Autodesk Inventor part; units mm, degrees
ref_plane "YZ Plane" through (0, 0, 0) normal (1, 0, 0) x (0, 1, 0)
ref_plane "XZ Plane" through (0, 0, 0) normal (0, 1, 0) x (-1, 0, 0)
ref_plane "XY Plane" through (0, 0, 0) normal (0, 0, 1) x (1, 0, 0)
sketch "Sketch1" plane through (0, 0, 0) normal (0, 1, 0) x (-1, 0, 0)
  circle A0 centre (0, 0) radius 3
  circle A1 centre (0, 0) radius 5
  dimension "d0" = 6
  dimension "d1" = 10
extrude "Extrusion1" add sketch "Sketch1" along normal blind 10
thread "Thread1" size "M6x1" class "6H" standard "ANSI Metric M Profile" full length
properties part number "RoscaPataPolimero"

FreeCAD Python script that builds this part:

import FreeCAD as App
import Part
import Sketcher

doc = App.newDocument("Part")
params = doc.addObject("Spreadsheet::Sheet", "Params")
for row, (alias, value) in enumerate([
    ("sketch1_diameter", "10 mm"),
    ("sketch1_diameter2", "6 mm"),
    ("pad1_length", "10 mm"),
], start=1):
    params.set(f"A{row}", alias)
    params.set(f"B{row}", "=" + value)
    params.setAlias(f"B{row}", alias)

body = doc.addObject("PartDesign::Body", "Body")

sketch1 = body.newObject("Sketcher::SketchObject", "Sketch")
sketch1.AttachmentSupport = (doc.getObject("XZ_Plane"), [""])
sketch1.MapMode = "FlatFace"
sketch1.addGeometry([
    Part.Circle(App.Vector(0, 0, 0), App.Vector(0, 0, 1), 5),
    Part.Circle(App.Vector(0, 0, 0), App.Vector(0, 0, 1), 3),
], False)
sketch1.addConstraint([
    Sketcher.Constraint("Coincident", 0, 3, -1, 1),
    Sketcher.Constraint("Coincident", 1, 3, -1, 1),
    Sketcher.Constraint("Diameter", 0, 10.0),
    Sketcher.Constraint("Diameter", 1, 6.0),
])
sketch1.setExpression("Constraints[2]", "Params.sketch1_diameter")
sketch1.setExpression("Constraints[3]", "Params.sketch1_diameter2")
pad1 = body.newObject("PartDesign::Pad", "Pad")
pad1.Profile = sketch1
pad1.setExpression("Length", "Params.pad1_length")
pad1.Reversed = True

doc.recompute()
